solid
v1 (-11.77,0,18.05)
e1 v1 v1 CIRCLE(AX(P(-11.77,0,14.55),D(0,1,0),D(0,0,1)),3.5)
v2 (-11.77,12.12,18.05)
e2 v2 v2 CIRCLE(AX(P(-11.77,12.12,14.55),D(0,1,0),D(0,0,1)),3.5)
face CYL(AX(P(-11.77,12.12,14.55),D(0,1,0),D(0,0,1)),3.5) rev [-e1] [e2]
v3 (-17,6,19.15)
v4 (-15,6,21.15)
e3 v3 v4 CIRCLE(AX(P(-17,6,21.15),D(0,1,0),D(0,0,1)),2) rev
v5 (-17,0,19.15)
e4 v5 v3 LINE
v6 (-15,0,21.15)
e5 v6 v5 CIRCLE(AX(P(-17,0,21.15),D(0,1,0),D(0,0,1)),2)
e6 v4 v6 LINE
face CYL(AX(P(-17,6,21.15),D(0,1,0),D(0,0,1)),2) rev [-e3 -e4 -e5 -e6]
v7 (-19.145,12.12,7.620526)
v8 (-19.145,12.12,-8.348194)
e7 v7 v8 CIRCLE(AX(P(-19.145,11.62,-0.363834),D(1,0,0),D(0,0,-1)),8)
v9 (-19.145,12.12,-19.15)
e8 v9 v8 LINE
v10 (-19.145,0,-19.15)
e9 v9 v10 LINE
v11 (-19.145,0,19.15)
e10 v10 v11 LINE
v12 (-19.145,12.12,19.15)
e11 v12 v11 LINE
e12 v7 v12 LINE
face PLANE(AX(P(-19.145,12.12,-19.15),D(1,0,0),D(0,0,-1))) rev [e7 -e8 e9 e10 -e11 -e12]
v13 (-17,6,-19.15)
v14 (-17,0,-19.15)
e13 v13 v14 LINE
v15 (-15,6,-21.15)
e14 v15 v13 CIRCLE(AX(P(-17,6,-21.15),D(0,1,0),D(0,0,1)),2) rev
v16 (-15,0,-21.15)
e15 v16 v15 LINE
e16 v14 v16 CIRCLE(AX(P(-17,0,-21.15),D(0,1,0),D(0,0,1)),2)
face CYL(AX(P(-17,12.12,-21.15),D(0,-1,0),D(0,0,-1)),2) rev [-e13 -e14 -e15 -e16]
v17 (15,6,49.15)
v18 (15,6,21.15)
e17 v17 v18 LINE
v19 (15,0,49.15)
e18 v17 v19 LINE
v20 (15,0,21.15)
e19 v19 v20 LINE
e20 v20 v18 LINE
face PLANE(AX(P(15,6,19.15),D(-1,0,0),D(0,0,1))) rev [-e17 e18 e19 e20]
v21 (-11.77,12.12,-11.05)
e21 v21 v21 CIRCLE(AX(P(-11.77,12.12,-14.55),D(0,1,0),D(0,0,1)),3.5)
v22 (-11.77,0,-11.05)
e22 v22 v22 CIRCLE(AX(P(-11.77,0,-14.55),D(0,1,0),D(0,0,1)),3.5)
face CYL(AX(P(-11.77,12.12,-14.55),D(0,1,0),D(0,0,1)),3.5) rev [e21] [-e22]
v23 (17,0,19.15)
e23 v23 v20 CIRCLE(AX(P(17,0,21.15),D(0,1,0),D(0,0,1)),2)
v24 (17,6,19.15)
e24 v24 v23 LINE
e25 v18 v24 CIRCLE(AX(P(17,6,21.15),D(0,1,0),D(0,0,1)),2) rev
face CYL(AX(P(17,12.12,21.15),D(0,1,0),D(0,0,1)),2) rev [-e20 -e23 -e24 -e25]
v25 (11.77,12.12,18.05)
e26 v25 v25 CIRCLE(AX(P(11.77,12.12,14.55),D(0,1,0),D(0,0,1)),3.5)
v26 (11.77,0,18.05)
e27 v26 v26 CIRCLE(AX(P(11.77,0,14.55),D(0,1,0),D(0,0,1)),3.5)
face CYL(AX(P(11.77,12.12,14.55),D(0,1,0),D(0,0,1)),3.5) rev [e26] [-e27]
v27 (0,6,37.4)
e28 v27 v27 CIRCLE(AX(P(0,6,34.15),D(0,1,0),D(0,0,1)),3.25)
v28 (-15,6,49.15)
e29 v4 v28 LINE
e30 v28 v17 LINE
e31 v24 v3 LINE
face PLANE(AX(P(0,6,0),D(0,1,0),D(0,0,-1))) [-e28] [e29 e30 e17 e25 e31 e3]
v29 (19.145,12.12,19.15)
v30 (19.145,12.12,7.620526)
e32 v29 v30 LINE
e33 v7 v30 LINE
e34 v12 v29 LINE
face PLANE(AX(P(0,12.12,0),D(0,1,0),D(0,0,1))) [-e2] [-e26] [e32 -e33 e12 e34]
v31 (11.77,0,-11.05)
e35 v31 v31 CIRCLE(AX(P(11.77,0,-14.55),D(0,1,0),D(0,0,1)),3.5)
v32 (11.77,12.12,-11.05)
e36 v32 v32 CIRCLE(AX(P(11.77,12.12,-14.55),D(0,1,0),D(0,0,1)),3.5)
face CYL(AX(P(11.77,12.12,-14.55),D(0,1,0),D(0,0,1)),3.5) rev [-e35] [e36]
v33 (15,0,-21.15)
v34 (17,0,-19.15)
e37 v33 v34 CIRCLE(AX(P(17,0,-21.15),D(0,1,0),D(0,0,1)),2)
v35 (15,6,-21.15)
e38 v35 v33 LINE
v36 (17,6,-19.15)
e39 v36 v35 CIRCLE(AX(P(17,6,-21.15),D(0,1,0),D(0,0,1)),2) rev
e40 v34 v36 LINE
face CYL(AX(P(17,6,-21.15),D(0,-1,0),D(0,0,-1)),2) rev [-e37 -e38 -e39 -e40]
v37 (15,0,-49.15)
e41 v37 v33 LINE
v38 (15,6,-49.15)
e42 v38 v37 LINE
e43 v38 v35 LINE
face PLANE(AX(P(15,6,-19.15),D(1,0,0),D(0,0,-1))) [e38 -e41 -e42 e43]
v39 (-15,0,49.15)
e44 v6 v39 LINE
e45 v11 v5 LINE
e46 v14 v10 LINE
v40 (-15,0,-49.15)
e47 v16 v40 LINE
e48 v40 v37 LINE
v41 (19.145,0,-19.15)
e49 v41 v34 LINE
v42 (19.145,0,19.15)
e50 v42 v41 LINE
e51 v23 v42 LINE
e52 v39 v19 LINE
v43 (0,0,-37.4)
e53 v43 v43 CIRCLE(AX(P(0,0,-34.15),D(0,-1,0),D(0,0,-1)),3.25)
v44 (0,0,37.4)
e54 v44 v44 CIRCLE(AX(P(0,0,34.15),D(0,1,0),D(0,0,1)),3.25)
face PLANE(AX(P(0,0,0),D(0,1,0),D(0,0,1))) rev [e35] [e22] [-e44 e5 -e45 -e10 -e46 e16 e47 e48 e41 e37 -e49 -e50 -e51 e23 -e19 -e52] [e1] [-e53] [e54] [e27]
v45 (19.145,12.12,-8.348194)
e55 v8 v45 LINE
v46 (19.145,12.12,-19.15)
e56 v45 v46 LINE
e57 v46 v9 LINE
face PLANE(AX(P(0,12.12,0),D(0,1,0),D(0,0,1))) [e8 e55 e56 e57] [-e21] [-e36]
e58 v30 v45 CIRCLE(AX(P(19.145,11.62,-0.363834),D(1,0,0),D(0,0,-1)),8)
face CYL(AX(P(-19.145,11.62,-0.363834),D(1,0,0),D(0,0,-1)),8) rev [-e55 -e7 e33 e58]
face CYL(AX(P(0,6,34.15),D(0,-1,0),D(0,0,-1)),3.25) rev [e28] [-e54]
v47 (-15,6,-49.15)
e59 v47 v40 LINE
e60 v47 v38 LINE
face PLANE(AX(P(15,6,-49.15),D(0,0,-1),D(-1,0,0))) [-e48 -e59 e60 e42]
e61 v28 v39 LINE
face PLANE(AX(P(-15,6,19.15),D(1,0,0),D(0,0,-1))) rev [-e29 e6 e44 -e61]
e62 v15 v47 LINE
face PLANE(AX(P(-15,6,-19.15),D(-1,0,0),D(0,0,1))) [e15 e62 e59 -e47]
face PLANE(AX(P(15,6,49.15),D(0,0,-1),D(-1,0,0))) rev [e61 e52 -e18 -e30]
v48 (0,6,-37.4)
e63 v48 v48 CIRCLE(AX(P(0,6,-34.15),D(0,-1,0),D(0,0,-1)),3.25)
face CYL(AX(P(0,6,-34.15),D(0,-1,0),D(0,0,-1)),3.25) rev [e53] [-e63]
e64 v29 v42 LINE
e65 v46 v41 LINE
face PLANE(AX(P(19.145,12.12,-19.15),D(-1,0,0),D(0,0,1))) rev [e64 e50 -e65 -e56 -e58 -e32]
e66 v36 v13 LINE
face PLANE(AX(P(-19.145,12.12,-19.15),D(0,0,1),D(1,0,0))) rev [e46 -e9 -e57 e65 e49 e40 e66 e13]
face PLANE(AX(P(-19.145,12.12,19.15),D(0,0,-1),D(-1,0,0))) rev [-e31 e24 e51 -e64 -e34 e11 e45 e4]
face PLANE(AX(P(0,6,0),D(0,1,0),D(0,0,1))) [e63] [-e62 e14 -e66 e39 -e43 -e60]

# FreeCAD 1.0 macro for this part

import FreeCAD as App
import Part
import Sketcher
from FreeCAD import Vector


def edges_at(feature, points):
    """Names of the edges that pass closest to the given points."""
    edges = feature.Shape.Edges
    near = lambda p: min(range(len(edges)), key=lambda i: edges[i].distToShape(Part.Vertex(*p))[0])
    return sorted({f"Edge{near(p) + 1}" for p in points})

doc = App.newDocument("Part")
body = doc.addObject("PartDesign::Body", "Body")

sketch1 = body.newObject("Sketcher::SketchObject", "Sketch")
sketch1.AttachmentSupport = (doc.getObject("XZ_Plane"), [""])
sketch1.MapMode = "FlatFace"
sketch1.addGeometry([
    Part.LineSegment(Vector(-19, -19, 0), Vector(-19, 19, 0)),
    Part.LineSegment(Vector(-19, 19, 0), Vector(19, 19, 0)),
    Part.LineSegment(Vector(19, 19, 0), Vector(19, -19, 0)),
    Part.LineSegment(Vector(19, -19, 0), Vector(-19, -19, 0)),
], False)
sketch1.addConstraint([
    Sketcher.Constraint("Coincident", 0, 2, 1, 1),
    Sketcher.Constraint("Coincident", 1, 2, 2, 1),
    Sketcher.Constraint("Coincident", 2, 2, 3, 1),
    Sketcher.Constraint("Coincident", 3, 2, 0, 1),
    Sketcher.Constraint("Vertical", 0),
    Sketcher.Constraint("Horizontal", 1),
    Sketcher.Constraint("Vertical", 2),
    Sketcher.Constraint("Horizontal", 3),
    Sketcher.Constraint("Symmetric", 0, 2, 2, 2, -1, 1),
    Sketcher.Constraint("DistanceY", 0, 1, 0, 2, 38.3),
    Sketcher.Constraint("DistanceX", 1, 1, 1, 2, 38.29),
])
pad1 = body.newObject("PartDesign::Pad", "Pad")
pad1.Profile = sketch1
pad1.Length = 12.12
pad1.Reversed = True

sketch2 = body.newObject("Sketcher::SketchObject", "Sketch001")
sketch2.AttachmentSupport = (doc.getObject("YZ_Plane"), [""])
sketch2.MapMode = "FlatFace"
sketch2.AttachmentOffset = App.Placement(Vector(0, 0, 19.145), App.Rotation())
sketch2.addGeometry(Part.Circle(Vector(12, 0, 0), Vector(0, 0, 1), 8), False)
sketch2.addConstraint([
    Sketcher.Constraint("Diameter", 0, 16.0),
    Sketcher.Constraint("DistanceX", -1, 1, 0, 3, 11.62),
    Sketcher.Constraint("DistanceY", 0, 3, -1, 1, 0.363834),
])
pocket1 = body.newObject("PartDesign::Pocket", "Pocket")
pocket1.Profile = sketch2
pocket1.Type = "ThroughAll"

sketch3 = body.newObject("Sketcher::SketchObject", "Sketch002")
sketch3.AttachmentSupport = (doc.getObject("XZ_Plane"), [""])
sketch3.MapMode = "FlatFace"
sketch3.AttachmentOffset = App.Placement(Vector(0, 0, -12.12), App.Rotation())
sketch3.addGeometry([
    Part.Circle(Vector(-11.8, -14.6, 0), Vector(0, 0, 1), 3.5),
    Part.Circle(Vector(11.8, -14.6, 0), Vector(0, 0, 1), 3.5),
    Part.Circle(Vector(-11.8, 14.6, 0), Vector(0, 0, 1), 3.5),
    Part.Circle(Vector(11.8, 14.6, 0), Vector(0, 0, 1), 3.5),
], False)
sketch3.addConstraint([
    Sketcher.Constraint("Equal", 0, 1),
    Sketcher.Constraint("Equal", 1, 2),
    Sketcher.Constraint("Equal", 2, 3),
    Sketcher.Constraint("Symmetric", 1, 3, 2, 3, -1, 1),
    Sketcher.Constraint("Symmetric", 0, 3, 3, 3, -1, 1),
    Sketcher.Constraint("Symmetric", 0, 3, 1, 3, -2),
    Sketcher.Constraint("Diameter", 0, 7.0),
    Sketcher.Constraint("DistanceY", 0, 3, 2, 3, 29.1),
    Sketcher.Constraint("DistanceX", 0, 3, -1, 1, 11.77),
])
doc.recompute()
hole = body.newObject("PartDesign::Hole", "Hole")
hole.Profile = sketch3
hole.ThreadType = "None"
hole.Diameter = 7
hole.DepthType = "ThroughAll"
hole.Reversed = True
doc.recompute()

mirrored = body.newObject("PartDesign::Mirrored", "Mirrored")
mirrored.Originals = [hole]
mirrored.MirrorPlane = (doc.getObject("XY_Plane"), [""])
body.Tip = mirrored
doc.recompute()

mirrored2 = body.newObject("PartDesign::Mirrored", "Mirrored001")
mirrored2.Originals = [hole]
mirrored2.MirrorPlane = (doc.getObject("YZ_Plane"), [""])
body.Tip = mirrored2

sketch4 = body.newObject("Sketcher::SketchObject", "Sketch003")
sketch4.AttachmentSupport = (doc.getObject("XZ_Plane"), [""])
sketch4.MapMode = "FlatFace"
sketch4.AttachmentOffset = App.Placement(Vector(0, 0, -12.12), App.Rotation())
sketch4.addGeometry([
    Part.Circle(Vector(11.8, 14.6, 0), Vector(0, 0, 1), 3.5),
    Part.Circle(Vector(-11.8, 14.6, 0), Vector(0, 0, 1), 3.5),
    Part.Circle(Vector(11.8, -14.6, 0), Vector(0, 0, 1), 3.5),
    Part.Circle(Vector(-11.8, -14.6, 0), Vector(0, 0, 1), 3.5),
], False)
sketch4.addConstraint([
    Sketcher.Constraint("Equal", 0, 1),
    Sketcher.Constraint("Equal", 1, 2),
    Sketcher.Constraint("Equal", 2, 3),
    Sketcher.Constraint("Symmetric", 1, 3, 2, 3, -1, 1),
    Sketcher.Constraint("Symmetric", 0, 3, 3, 3, -1, 1),
    Sketcher.Constraint("Symmetric", 0, 3, 1, 3, -2),
    Sketcher.Constraint("Diameter", 0, 7.0),
    Sketcher.Constraint("DistanceY", 2, 3, 0, 3, 29.1),
    Sketcher.Constraint("DistanceX", -1, 1, 0, 3, 11.77),
])
doc.recompute()
hole2 = body.newObject("PartDesign::Hole", "Hole001")
hole2.Profile = sketch4
hole2.ThreadType = "None"
hole2.Diameter = 7
hole2.DepthType = "ThroughAll"
hole2.Reversed = True

sketch5 = body.newObject("Sketcher::SketchObject", "Sketch004")
sketch5.AttachmentSupport = (doc.getObject("XZ_Plane"), [""])
sketch5.MapMode = "FlatFace"
sketch5.addGeometry([
    Part.LineSegment(Vector(-15, -19.1, 0), Vector(-15, -49.1, 0)),
    Part.LineSegment(Vector(-15, -49.1, 0), Vector(15, -49.1, 0)),
    Part.LineSegment(Vector(15, -49.1, 0), Vector(15, -19.1, 0)),
    Part.LineSegment(Vector(15, -19.1, 0), Vector(-15, -19.1, 0)),
    Part.Circle(Vector(0, -34.1, 0), Vector(0, 0, 1), 3.2),
], False)
sketch5.addConstraint([
    Sketcher.Constraint("Coincident", 0, 2, 1, 1),
    Sketcher.Constraint("Coincident", 1, 2, 2, 1),
    Sketcher.Constraint("Coincident", 2, 2, 3, 1),
    Sketcher.Constraint("Coincident", 3, 2, 0, 1),
    Sketcher.Constraint("Vertical", 0),
    Sketcher.Constraint("Horizontal", 1),
    Sketcher.Constraint("Vertical", 2),
    Sketcher.Constraint("Horizontal", 3),
    Sketcher.Constraint("PointOnObject", 4, 3, -2),
    Sketcher.Constraint("Equal", 3, 0),
    Sketcher.Constraint("Diameter", 4, 6.5),
    Sketcher.Constraint("DistanceX", 1, 1, 1, 2, 30.0),
    Sketcher.Constraint("DistanceX", 0, 2, -1, 1, 15.0),
    Sketcher.Constraint("DistanceY", 0, 2, 4, 3, 15.0),
    Sketcher.Constraint("DistanceY", 4, 3, -1, 1, 34.15),
])
pad2 = body.newObject("PartDesign::Pad", "Pad001")
pad2.Profile = sketch5
pad2.Length = 6
pad2.Reversed = True
doc.recompute()

mirrored3 = body.newObject("PartDesign::Mirrored", "Mirrored002")
mirrored3.Originals = [pad2]
mirrored3.MirrorPlane = (doc.getObject("XY_Plane"), [""])
body.Tip = mirrored3
doc.recompute()

fillet = body.newObject("PartDesign::Fillet", "Fillet")
fillet.Base = (mirrored3, edges_at(mirrored3, [
    (15, 3, 19.15),
    (-15, 3, 19.15),
    (15, 3, -19.15),
    (-15, 3, -19.15),
]))
fillet.Radius = 2

doc.recompute()
